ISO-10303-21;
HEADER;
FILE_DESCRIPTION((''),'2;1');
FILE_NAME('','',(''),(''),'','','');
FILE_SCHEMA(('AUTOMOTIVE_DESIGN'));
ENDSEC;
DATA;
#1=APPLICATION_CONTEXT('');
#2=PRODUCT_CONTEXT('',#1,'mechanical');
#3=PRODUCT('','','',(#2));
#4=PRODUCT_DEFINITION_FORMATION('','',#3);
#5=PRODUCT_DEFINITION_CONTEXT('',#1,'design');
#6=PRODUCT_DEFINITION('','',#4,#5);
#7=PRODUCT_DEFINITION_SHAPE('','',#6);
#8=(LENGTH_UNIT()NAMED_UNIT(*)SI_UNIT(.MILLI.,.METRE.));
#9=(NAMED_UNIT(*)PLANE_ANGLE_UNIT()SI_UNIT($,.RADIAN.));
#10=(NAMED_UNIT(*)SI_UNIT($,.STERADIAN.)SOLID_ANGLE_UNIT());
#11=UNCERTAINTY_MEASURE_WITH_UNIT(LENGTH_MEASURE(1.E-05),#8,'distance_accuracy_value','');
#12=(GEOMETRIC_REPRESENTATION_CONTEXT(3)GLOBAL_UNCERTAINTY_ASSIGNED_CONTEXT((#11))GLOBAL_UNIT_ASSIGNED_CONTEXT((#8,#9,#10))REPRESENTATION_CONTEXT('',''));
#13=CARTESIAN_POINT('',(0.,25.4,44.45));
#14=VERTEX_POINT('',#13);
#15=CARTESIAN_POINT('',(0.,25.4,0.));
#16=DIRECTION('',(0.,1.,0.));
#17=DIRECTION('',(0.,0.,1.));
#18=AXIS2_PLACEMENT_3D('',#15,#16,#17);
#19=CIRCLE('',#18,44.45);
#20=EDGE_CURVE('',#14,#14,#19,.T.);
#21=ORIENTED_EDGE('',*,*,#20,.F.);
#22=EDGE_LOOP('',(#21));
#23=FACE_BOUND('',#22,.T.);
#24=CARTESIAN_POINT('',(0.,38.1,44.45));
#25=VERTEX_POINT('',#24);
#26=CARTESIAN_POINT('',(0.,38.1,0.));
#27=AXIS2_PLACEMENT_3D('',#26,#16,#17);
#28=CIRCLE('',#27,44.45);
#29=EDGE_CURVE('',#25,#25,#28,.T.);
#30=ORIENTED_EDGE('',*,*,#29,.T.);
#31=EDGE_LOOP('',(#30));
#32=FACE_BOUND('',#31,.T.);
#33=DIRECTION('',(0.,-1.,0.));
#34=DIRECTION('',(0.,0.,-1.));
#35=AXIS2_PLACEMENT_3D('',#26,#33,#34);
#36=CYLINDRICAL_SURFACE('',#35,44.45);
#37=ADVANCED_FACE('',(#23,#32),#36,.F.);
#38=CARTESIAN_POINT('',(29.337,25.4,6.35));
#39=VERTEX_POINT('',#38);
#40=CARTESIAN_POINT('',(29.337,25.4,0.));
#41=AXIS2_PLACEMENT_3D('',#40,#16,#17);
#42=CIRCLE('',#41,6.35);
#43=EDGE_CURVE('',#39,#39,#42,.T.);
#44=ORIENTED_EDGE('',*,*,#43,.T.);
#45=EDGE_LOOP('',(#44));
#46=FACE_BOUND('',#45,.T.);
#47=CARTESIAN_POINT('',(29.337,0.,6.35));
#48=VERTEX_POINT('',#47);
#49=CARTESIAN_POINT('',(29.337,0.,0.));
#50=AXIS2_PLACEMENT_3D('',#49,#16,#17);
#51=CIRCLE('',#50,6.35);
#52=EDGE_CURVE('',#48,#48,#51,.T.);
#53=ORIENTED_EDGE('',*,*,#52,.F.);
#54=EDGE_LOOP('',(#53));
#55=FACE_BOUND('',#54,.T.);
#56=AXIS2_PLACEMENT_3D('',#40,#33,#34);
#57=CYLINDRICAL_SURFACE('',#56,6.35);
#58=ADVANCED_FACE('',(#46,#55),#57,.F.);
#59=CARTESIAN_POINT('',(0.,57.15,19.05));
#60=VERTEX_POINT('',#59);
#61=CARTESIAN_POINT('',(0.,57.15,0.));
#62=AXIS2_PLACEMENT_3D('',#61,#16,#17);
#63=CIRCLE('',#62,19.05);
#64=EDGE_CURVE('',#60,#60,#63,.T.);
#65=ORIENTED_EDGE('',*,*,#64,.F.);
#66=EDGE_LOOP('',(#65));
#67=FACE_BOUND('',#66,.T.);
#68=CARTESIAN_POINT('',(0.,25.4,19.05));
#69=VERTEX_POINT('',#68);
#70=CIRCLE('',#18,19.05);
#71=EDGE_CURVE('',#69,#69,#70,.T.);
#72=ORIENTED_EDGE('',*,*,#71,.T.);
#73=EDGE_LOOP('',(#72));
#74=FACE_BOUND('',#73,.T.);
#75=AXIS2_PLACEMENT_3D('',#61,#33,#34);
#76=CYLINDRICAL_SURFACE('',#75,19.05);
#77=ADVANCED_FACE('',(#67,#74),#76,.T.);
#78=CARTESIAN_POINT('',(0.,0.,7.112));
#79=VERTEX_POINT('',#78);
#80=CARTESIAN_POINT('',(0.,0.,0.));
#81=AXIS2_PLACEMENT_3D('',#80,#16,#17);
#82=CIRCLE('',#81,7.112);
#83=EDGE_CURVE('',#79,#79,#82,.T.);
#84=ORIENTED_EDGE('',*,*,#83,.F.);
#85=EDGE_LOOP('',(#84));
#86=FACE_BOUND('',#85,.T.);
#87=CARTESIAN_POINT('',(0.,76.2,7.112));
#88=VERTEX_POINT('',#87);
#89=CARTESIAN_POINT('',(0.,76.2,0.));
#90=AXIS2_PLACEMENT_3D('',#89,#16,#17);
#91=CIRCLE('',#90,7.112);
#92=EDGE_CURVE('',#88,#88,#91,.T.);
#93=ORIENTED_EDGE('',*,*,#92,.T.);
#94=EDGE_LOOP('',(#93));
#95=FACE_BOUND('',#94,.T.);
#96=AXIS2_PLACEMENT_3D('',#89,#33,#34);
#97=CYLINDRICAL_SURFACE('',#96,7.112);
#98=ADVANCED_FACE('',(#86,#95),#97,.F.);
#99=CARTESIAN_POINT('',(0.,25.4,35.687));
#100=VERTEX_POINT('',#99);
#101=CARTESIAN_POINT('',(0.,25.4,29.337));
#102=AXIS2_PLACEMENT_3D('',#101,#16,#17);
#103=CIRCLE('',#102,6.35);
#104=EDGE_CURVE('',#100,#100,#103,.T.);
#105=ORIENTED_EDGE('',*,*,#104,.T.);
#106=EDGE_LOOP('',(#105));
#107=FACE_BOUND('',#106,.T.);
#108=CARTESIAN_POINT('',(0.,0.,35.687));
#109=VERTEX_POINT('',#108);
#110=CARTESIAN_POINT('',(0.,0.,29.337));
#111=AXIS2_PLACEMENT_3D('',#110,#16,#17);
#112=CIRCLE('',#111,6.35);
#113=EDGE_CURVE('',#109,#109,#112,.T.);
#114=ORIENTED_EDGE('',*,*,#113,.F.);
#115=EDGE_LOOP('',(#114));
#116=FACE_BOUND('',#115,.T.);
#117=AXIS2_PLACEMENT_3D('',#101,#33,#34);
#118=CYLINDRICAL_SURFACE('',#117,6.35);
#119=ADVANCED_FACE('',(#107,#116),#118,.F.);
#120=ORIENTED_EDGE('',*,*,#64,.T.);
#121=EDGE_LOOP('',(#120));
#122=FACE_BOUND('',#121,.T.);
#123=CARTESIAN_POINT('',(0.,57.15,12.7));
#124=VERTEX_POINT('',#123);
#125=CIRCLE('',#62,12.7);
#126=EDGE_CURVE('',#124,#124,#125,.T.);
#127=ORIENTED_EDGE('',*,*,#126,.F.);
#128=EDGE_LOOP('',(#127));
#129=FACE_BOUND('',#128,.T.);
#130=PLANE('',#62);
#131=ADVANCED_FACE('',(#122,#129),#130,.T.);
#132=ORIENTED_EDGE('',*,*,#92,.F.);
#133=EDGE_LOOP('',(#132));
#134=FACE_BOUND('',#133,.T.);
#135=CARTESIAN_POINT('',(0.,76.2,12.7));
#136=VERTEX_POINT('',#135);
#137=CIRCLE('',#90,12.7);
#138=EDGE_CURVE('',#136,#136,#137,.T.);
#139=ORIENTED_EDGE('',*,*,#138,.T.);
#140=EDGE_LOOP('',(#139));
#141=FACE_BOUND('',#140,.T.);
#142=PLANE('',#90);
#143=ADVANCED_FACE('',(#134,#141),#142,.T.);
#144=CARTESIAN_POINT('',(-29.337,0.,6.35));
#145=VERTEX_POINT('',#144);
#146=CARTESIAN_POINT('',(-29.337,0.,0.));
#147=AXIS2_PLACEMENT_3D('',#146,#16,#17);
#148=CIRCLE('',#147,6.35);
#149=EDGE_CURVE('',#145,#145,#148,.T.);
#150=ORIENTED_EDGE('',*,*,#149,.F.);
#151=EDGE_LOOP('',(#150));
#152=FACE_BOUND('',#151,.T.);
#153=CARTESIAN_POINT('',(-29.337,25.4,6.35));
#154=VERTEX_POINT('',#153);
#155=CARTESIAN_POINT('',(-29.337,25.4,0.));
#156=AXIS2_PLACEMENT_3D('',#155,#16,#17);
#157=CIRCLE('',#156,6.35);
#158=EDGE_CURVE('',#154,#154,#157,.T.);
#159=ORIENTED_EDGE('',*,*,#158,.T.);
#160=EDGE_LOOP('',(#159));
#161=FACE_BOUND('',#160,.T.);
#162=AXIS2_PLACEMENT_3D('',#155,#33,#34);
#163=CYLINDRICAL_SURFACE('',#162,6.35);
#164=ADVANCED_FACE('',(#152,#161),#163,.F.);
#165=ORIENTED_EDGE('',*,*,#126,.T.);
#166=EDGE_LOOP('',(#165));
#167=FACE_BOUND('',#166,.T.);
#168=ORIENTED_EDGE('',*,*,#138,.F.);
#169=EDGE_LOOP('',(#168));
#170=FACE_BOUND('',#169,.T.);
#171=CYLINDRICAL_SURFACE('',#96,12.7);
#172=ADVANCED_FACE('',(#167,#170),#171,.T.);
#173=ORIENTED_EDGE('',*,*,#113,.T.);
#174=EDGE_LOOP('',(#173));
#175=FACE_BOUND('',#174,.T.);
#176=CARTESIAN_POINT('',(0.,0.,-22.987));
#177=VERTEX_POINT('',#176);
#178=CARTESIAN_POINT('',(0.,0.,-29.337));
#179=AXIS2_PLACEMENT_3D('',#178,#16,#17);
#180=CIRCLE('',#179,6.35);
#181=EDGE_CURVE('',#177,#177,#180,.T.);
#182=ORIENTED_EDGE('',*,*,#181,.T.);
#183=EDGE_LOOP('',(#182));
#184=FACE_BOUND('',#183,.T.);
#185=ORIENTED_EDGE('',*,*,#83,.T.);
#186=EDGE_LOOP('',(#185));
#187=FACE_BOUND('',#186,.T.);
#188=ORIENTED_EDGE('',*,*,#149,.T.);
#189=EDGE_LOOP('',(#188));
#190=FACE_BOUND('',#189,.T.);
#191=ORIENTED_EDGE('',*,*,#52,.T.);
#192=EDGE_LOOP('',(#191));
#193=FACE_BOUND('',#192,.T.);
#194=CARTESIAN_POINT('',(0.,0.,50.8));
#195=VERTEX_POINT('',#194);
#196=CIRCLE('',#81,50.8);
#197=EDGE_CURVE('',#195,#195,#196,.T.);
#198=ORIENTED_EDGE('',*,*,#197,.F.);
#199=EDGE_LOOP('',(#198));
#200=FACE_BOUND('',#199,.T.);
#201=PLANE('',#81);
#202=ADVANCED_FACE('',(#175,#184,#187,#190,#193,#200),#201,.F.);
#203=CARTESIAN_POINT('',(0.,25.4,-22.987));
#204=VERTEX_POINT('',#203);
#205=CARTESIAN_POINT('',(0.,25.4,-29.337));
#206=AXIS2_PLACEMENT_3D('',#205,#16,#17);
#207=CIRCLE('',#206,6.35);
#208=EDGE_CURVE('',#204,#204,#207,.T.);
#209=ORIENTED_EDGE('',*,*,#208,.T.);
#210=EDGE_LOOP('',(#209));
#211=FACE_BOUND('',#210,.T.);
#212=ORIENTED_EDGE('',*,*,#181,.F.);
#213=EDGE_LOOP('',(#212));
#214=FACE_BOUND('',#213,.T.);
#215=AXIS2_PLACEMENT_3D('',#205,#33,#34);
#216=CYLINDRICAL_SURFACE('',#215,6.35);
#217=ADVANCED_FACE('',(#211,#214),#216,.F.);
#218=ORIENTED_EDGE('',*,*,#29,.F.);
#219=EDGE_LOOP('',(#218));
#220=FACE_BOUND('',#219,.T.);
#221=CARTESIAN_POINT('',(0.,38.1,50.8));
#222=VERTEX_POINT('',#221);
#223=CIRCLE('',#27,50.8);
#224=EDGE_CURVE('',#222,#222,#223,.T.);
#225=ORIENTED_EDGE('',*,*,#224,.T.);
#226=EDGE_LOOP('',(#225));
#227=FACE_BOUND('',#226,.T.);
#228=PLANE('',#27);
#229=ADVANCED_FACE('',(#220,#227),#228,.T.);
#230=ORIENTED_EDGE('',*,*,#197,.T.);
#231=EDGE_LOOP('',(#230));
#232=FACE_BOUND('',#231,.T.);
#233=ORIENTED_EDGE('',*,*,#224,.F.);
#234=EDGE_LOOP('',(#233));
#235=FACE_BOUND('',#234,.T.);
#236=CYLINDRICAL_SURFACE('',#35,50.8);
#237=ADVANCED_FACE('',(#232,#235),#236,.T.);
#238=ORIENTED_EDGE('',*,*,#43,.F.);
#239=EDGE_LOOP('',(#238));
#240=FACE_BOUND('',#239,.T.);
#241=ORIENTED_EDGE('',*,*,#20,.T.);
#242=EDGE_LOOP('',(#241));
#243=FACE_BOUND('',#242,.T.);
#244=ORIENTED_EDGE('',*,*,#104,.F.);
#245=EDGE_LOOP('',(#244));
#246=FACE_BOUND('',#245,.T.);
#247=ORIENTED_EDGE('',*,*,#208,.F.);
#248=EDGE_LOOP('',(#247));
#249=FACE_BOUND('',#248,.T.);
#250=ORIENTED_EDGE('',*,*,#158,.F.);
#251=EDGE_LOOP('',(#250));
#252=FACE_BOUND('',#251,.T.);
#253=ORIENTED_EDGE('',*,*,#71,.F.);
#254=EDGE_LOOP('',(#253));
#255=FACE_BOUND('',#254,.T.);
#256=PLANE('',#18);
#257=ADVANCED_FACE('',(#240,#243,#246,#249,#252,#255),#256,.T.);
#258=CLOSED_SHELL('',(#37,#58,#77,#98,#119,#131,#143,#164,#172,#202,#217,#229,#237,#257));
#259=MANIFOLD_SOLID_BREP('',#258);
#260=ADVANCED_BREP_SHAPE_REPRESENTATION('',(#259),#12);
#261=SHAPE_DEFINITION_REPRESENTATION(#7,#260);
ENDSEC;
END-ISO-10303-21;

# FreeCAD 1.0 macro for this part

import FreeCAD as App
import Part
import Sketcher

V = App.Vector
Q = App.Units.Quantity

doc = App.newDocument("Part")
body = doc.addObject("PartDesign::Body", "Body")

sketch1 = doc.addObject("Sketcher::SketchObject", "Sketch")
body.addObject(sketch1)
sketch1.AttachmentSupport = (doc.XZ_Plane, [""])
sketch1.MapMode = "FlatFace"
sketch1.addGeometry([
    Part.Circle(V(0, 0, 0), V(0, 0, 1), 50.8),
    Part.Circle(V(0, 0, 0), V(0, 0, 1), 44.45),
], False)
sketch1.addConstraint([
    Sketcher.Constraint("Coincident", 0, 3, -1, 1),
    Sketcher.Constraint("Coincident", 1, 3, -1, 1),
    Sketcher.Constraint("Diameter", 0, Q("4 in")),
    Sketcher.Constraint("Diameter", 1, Q("3.5 in")),
])
pad1 = doc.addObject("PartDesign::Pad", "Pad")
body.addObject(pad1)
pad1.Profile = sketch1
pad1.Length = Q("1.5 in")
pad1.Reversed = True

sketch2 = doc.addObject("Sketcher::SketchObject", "Sketch001")
body.addObject(sketch2)
sketch2.AttachmentSupport = (doc.XZ_Plane, [""])
sketch2.MapMode = "FlatFace"
sketch2.addGeometry([
    Part.Circle(V(0, 0, 0), V(0, 0, 1), 44.45),
    Part.Circle(V(0, 29.337, 0), V(0, 0, 1), 6.35),
    Part.Circle(V(-29.337, 0, 0), V(0, 0, 1), 6.35),
    Part.Circle(V(0, 0, 0), V(0, 0, 1), 19.05),
    Part.Circle(V(29.337, 0, 0), V(0, 0, 1), 6.35),
    Part.Circle(V(0, -29.337, 0), V(0, 0, 1), 6.35),
], False)
sketch2.addConstraint([
    Sketcher.Constraint("Coincident", 0, 3, -1, 1),
    Sketcher.Constraint("Coincident", 3, 3, -1, 1),
    Sketcher.Constraint("Equal", 1, 2),
    Sketcher.Constraint("Equal", 2, 4),
    Sketcher.Constraint("Equal", 4, 5),
    Sketcher.Constraint("Symmetric", 2, 3, 4, 3, -1, 1),
    Sketcher.Constraint("Symmetric", 1, 3, 5, 3, -1, 1),
    Sketcher.Constraint("PointOnObject", 1, 3, -2),
    Sketcher.Constraint("PointOnObject", 2, 3, -1),
    Sketcher.Constraint("Diameter", 0, Q("3.5 in")),
    Sketcher.Constraint("Diameter", 1, Q("0.5 in")),
    Sketcher.Constraint("Diameter", 3, Q("1.5 in")),
    Sketcher.Constraint("DistanceX", 2, 3, 4, 3, Q("2.31 in")),
    Sketcher.Constraint("DistanceY", 5, 3, 1, 3, Q("2.31 in")),
])
pad2 = doc.addObject("PartDesign::Pad", "Pad001")
body.addObject(pad2)
pad2.Profile = sketch2
pad2.Length = Q("1 in")
pad2.Reversed = True

sketch3 = doc.addObject("Sketcher::SketchObject", "Sketch002")
body.addObject(sketch3)
sketch3.AttachmentSupport = (doc.XZ_Plane, [""])
sketch3.MapMode = "FlatFace"
sketch3.addGeometry([
    Part.Circle(V(0, 0, 0), V(0, 0, 1), 19.05),
    Part.Circle(V(0, 0, 0), V(0, 0, 1), 12.7),
], False)
sketch3.addConstraint([
    Sketcher.Constraint("Coincident", 0, 3, -1, 1),
    Sketcher.Constraint("Coincident", 1, 3, -1, 1),
    Sketcher.Constraint("Diameter", 1, Q("1 in")),
    Sketcher.Constraint("Diameter", 0, Q("1.5 in")),
])
pad3 = doc.addObject("PartDesign::Pad", "Pad002")
body.addObject(pad3)
pad3.Profile = sketch3
pad3.Length = Q("2.25 in")
pad3.Reversed = True

sketch4 = doc.addObject("Sketcher::SketchObject", "Sketch003")
body.addObject(sketch4)
sketch4.AttachmentSupport = (doc.XZ_Plane, [""])
sketch4.MapMode = "FlatFace"
sketch4.addGeometry([
    Part.Circle(V(0, 0, 0), V(0, 0, 1), 12.7),
    Part.Circle(V(0, 0, 0), V(0, 0, 1), 7.112),
], False)
sketch4.addConstraint([
    Sketcher.Constraint("Coincident", 0, 3, -1, 1),
    Sketcher.Constraint("Coincident", 1, 3, -1, 1),
    Sketcher.Constraint("Diameter", 0, Q("1 in")),
    Sketcher.Constraint("Diameter", 1, Q("0.56 in")),
])
pad4 = doc.addObject("PartDesign::Pad", "Pad003")
body.addObject(pad4)
pad4.Profile = sketch4
pad4.Length = Q("3 in")
pad4.Reversed = True

doc.recompute()
